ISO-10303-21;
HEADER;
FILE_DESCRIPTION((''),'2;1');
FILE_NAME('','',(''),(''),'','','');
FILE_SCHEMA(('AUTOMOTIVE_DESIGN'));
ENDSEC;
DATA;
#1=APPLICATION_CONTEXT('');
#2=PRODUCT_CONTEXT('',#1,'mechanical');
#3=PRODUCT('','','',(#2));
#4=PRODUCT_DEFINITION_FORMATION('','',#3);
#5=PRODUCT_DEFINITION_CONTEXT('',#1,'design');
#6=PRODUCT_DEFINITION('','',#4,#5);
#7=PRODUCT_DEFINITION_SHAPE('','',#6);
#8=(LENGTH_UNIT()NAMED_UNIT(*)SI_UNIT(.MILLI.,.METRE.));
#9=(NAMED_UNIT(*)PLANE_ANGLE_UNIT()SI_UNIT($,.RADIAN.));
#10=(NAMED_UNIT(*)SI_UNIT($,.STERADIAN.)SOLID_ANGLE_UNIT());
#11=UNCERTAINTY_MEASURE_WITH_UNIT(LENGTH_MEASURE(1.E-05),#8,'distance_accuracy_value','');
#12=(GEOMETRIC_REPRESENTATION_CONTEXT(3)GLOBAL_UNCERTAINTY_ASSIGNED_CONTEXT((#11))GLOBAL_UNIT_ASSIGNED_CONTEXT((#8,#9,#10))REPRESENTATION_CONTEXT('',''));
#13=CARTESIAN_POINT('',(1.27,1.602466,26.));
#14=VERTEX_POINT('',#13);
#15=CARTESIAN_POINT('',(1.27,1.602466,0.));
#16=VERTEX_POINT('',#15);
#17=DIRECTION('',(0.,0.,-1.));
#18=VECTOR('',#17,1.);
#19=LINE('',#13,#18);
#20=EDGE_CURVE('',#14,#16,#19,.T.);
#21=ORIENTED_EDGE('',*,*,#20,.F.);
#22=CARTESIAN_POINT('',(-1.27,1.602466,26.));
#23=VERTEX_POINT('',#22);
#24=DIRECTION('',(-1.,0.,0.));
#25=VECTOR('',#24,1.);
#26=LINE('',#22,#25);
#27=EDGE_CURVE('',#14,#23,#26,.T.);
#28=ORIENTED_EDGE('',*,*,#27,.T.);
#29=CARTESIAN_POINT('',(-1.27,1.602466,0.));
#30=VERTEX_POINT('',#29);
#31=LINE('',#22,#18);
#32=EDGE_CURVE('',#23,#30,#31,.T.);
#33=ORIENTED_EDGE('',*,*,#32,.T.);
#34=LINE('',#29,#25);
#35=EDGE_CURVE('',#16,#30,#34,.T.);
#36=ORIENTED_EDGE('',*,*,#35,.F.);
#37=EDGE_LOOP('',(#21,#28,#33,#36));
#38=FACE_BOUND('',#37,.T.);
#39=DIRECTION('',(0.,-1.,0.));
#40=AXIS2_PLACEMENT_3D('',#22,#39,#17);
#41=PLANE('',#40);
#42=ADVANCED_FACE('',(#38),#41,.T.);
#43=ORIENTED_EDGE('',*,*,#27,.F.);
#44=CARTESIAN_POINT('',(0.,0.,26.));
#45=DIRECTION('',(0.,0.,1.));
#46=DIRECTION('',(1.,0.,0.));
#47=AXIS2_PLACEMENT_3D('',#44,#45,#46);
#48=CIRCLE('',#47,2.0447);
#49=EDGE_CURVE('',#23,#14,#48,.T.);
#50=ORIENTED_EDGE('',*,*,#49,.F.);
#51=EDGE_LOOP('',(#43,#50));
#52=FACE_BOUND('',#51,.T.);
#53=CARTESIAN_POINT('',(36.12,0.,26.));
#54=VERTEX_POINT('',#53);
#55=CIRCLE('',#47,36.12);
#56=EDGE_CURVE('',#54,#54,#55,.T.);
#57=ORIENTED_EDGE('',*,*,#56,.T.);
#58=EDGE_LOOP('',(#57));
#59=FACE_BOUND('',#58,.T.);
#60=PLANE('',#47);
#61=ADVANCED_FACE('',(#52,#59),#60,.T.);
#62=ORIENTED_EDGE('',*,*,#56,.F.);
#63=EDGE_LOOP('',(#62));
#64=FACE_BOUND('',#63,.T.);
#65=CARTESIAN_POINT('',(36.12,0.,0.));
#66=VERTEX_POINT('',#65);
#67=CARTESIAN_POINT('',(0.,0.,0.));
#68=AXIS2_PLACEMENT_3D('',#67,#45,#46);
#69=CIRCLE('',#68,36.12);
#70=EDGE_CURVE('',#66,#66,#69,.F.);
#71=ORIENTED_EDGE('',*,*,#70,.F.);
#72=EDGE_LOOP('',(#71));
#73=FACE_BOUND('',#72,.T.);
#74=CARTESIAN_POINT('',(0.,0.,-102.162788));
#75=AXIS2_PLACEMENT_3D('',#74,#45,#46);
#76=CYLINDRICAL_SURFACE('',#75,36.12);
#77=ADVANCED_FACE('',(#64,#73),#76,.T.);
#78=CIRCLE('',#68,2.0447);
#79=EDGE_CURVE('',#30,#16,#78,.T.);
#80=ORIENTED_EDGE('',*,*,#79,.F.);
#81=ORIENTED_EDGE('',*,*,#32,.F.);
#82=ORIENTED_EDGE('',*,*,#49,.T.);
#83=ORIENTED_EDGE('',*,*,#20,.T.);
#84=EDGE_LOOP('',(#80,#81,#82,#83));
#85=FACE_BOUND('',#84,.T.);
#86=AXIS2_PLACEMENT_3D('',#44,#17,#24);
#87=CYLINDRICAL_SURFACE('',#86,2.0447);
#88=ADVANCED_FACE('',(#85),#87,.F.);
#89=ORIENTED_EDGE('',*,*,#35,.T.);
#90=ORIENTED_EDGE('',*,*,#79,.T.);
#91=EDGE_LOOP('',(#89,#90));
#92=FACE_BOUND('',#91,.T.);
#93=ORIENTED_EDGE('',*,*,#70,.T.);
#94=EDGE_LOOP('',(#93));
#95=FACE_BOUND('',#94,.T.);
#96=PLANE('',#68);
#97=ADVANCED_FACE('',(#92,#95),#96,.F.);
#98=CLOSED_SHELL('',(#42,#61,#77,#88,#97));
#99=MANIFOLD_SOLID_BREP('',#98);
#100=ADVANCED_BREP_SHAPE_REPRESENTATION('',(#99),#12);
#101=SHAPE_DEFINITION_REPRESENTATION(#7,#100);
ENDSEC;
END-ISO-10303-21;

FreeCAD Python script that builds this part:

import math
import FreeCAD as App
import Part
import Sketcher
Q = App.Units.Quantity

doc = App.newDocument("Part")
body = doc.addObject("PartDesign::Body", "Body")

# Sketch on XY plane
sketch1 = body.newObject("Sketcher::SketchObject", "Sketch")
sketch1.AttachmentSupport = (doc.getObject("XY_Plane"), [""])
sketch1.MapMode = "FlatFace"
sketch1.addGeometry(Part.Circle(App.Vector(0, 0, 0), App.Vector(0, 0, 1), 28.5), False)
sketch1.addGeometry(Part.ArcOfCircle(Part.Circle(App.Vector(0, 0, 0), App.Vector(0, 0, 1), 2.0447), math.radians(128.397824), math.radians(411.602176)), False)
sketch1.addGeometry(Part.LineSegment(App.Vector(-1.27, 1.602466, 0), App.Vector(1.27, 1.602466, 0)), False)
sketch1.addConstraint(Sketcher.Constraint("Coincident", 1, 1, 2, 1))
sketch1.addConstraint(Sketcher.Constraint("Coincident", 2, 2, 1, 2))
sketch1.addConstraint(Sketcher.Constraint("Horizontal", 2))
sketch1.addConstraint(Sketcher.Constraint("Coincident", 0, 3, -1, 1))
sketch1.addConstraint(Sketcher.Constraint("Coincident", 1, 3, -1, 1))
sketch1.addConstraint(Sketcher.Constraint("Diameter", 0, Q("57 mm")))
sketch1.addConstraint(Sketcher.Constraint("DistanceX", 2, 1, 2, 2, Q("2.54 mm")))
sketch1.addConstraint(Sketcher.Constraint("Radius", 1, Q("2.0447 mm")))
pad1 = body.newObject("PartDesign::Pad", "Pad")
pad1.Profile = sketch1
pad1.Length = 26

# Sketch on XY plane
sketch2 = body.newObject("Sketcher::SketchObject", "Sketch001")
sketch2.AttachmentSupport = (doc.getObject("XY_Plane"), [""])
sketch2.MapMode = "FlatFace"
sketch2.addGeometry(Part.Circle(App.Vector(0, 0, 0), App.Vector(0, 0, 1), 36.12), False)
sketch2.addGeometry(Part.Circle(App.Vector(0, 0, 0), App.Vector(0, 0, 1), 28.5), False)
sketch2.addConstraint(Sketcher.Constraint("Coincident", 0, 3, -1, 1))
sketch2.addConstraint(Sketcher.Constraint("Coincident", 1, 3, -1, 1))
sketch2.addConstraint(Sketcher.Constraint("Diameter", 1, Q("57 mm")))
sketch2.addConstraint(Sketcher.Constraint("Diameter", 0, Q("72.24 mm")))
pad2 = body.newObject("PartDesign::Pad", "Pad001")
pad2.Profile = sketch2
pad2.Length = 26

doc.recompute()
